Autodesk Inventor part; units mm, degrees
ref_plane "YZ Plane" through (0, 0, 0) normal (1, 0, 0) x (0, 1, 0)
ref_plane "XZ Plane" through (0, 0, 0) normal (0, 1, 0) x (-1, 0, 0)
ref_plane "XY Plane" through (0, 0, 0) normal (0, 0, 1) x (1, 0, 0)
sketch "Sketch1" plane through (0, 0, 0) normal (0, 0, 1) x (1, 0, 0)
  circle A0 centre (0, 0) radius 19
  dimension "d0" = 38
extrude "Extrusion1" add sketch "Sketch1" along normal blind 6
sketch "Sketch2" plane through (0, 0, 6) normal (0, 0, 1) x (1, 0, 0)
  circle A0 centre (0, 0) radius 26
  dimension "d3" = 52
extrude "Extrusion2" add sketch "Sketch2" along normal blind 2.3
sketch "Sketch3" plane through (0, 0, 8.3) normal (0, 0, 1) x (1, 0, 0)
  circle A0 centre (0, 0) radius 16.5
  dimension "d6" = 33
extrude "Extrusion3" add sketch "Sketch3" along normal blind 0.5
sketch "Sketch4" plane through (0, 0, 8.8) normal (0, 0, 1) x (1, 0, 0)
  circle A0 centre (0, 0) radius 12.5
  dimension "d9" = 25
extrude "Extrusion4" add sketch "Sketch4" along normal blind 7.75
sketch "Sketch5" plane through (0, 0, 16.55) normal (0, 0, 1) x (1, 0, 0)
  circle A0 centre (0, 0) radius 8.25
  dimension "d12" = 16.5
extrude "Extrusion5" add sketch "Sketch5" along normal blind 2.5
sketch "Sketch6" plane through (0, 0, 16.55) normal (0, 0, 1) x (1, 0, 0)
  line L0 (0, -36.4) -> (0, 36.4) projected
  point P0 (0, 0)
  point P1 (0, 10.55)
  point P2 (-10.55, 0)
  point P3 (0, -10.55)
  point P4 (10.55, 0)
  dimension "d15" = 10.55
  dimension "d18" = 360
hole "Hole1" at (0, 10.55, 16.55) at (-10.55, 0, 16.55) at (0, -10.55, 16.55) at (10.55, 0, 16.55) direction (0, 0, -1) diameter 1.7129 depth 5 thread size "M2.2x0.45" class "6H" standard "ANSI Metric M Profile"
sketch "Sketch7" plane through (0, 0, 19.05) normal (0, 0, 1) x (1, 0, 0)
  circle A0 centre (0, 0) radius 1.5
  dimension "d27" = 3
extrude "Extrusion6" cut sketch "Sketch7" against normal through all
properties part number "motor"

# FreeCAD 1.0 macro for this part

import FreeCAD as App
import Part
import Sketcher

doc = App.newDocument("Part")
body = doc.addObject("PartDesign::Body", "Body")

# Sketch on XY plane
sketch1 = body.newObject("Sketcher::SketchObject", "Sketch")
sketch1.AttachmentSupport = (doc.getObject("XY_Plane"), [""])
sketch1.MapMode = "FlatFace"
sketch1.addGeometry(Part.Circle(App.Vector(0, 0, 0), App.Vector(0, 0, 1), 19), False)
sketch1.addConstraint(Sketcher.Constraint("Coincident", 0, 3, -1, 1))
sketch1.addConstraint(Sketcher.Constraint("Diameter", 0, 38.0))
pad1 = body.newObject("PartDesign::Pad", "Pad")
pad1.Profile = sketch1
pad1.Length = 6

# Sketch on XY plane
sketch2 = body.newObject("Sketcher::SketchObject", "Sketch001")
sketch2.AttachmentSupport = (doc.getObject("XY_Plane"), [""])
sketch2.MapMode = "FlatFace"
sketch2.AttachmentOffset = App.Placement(App.Vector(0, 0, 6), App.Rotation())
sketch2.addGeometry(Part.Circle(App.Vector(0, 0, 0), App.Vector(0, 0, 1), 26), False)
sketch2.addConstraint(Sketcher.Constraint("Coincident", 0, 3, -1, 1))
sketch2.addConstraint(Sketcher.Constraint("Diameter", 0, 52.0))
pad2 = body.newObject("PartDesign::Pad", "Pad001")
pad2.Profile = sketch2
pad2.Length = 2.3

# Sketch on XY plane
sketch3 = body.newObject("Sketcher::SketchObject", "Sketch002")
sketch3.AttachmentSupport = (doc.getObject("XY_Plane"), [""])
sketch3.MapMode = "FlatFace"
sketch3.AttachmentOffset = App.Placement(App.Vector(0, 0, 8.3), App.Rotation())
sketch3.addGeometry(Part.Circle(App.Vector(0, 0, 0), App.Vector(0, 0, 1), 16), False)
sketch3.addConstraint(Sketcher.Constraint("Coincident", 0, 3, -1, 1))
sketch3.addConstraint(Sketcher.Constraint("Diameter", 0, 33.0))
pad3 = body.newObject("PartDesign::Pad", "Pad002")
pad3.Profile = sketch3
pad3.Length = 0.5

# Sketch on XY plane
sketch4 = body.newObject("Sketcher::SketchObject", "Sketch003")
sketch4.AttachmentSupport = (doc.getObject("XY_Plane"), [""])
sketch4.MapMode = "FlatFace"
sketch4.AttachmentOffset = App.Placement(App.Vector(0, 0, 8.8), App.Rotation())
sketch4.addGeometry(Part.Circle(App.Vector(0, 0, 0), App.Vector(0, 0, 1), 12), False)
sketch4.addConstraint(Sketcher.Constraint("Coincident", 0, 3, -1, 1))
sketch4.addConstraint(Sketcher.Constraint("Diameter", 0, 25.0))
pad4 = body.newObject("PartDesign::Pad", "Pad003")
pad4.Profile = sketch4
pad4.Length = 7.75

# Sketch on XY plane
sketch5 = body.newObject("Sketcher::SketchObject", "Sketch004")
sketch5.AttachmentSupport = (doc.getObject("XY_Plane"), [""])
sketch5.MapMode = "FlatFace"
sketch5.AttachmentOffset = App.Placement(App.Vector(0, 0, 16.55), App.Rotation())
sketch5.addGeometry(Part.Circle(App.Vector(0, 0, 0), App.Vector(0, 0, 1), 8), False)
sketch5.addConstraint(Sketcher.Constraint("Coincident", 0, 3, -1, 1))
sketch5.addConstraint(Sketcher.Constraint("Diameter", 0, 16.5))
pad5 = body.newObject("PartDesign::Pad", "Pad004")
pad5.Profile = sketch5
pad5.Length = 2.5

# Sketch on XY plane
sketch6 = body.newObject("Sketcher::SketchObject", "Sketch005")
sketch6.AttachmentSupport = (doc.getObject("XY_Plane"), [""])
sketch6.MapMode = "FlatFace"
sketch6.AttachmentOffset = App.Placement(App.Vector(0, 0, 16.55), App.Rotation())
sketch6.addGeometry(Part.Circle(App.Vector(0, 10.6, 0), App.Vector(0, 0, 1), 0.9), False)
sketch6.addGeometry(Part.Circle(App.Vector(-10.6, 0, 0), App.Vector(0, 0, 1), 0.9), False)
sketch6.addGeometry(Part.Circle(App.Vector(0, -10.6, 0), App.Vector(0, 0, 1), 0.9), False)
sketch6.addGeometry(Part.Circle(App.Vector(10.6, 0, 0), App.Vector(0, 0, 1), 0.9), False)
sketch6.addConstraint(Sketcher.Constraint("Equal", 0, 1))
sketch6.addConstraint(Sketcher.Constraint("Equal", 1, 2))
sketch6.addConstraint(Sketcher.Constraint("Equal", 2, 3))
sketch6.addConstraint(Sketcher.Constraint("Symmetric", 0, 3, 2, 3, -1, 1))
sketch6.addConstraint(Sketcher.Constraint("Symmetric", 1, 3, 3, 3, -1, 1))
sketch6.addConstraint(Sketcher.Constraint("PointOnObject", 0, 3, -2))
sketch6.addConstraint(Sketcher.Constraint("PointOnObject", 1, 3, -1))
sketch6.addConstraint(Sketcher.Constraint("Diameter", 0, 1.713))
sketch6.addConstraint(Sketcher.Constraint("DistanceY", 2, 3, 0, 3, 21.1))
sketch6.addConstraint(Sketcher.Constraint("DistanceX", 1, 3, 3, 3, 21.1))
doc.recompute()
hole = body.newObject("PartDesign::Hole", "Hole")
hole.Profile = sketch6
hole.ThreadType = "None"
hole.Diameter = 1.7129
hole.DepthType = "Dimension"
hole.Depth = 5
hole.DrillPoint = "Flat"

# Sketch on XY plane
sketch7 = body.newObject("Sketcher::SketchObject", "Sketch006")
sketch7.AttachmentSupport = (doc.getObject("XY_Plane"), [""])
sketch7.MapMode = "FlatFace"
sketch7.AttachmentOffset = App.Placement(App.Vector(0, 0, 19.05), App.Rotation())
sketch7.addGeometry(Part.Circle(App.Vector(0, 0, 0), App.Vector(0, 0, 1), 1.5), False)
sketch7.addConstraint(Sketcher.Constraint("Coincident", 0, 3, -1, 1))
sketch7.addConstraint(Sketcher.Constraint("Diameter", 0, 3.0))
pocket1 = body.newObject("PartDesign::Pocket", "Pocket")
pocket1.Profile = sketch7
pocket1.Type = "ThroughAll"

doc.recompute()
